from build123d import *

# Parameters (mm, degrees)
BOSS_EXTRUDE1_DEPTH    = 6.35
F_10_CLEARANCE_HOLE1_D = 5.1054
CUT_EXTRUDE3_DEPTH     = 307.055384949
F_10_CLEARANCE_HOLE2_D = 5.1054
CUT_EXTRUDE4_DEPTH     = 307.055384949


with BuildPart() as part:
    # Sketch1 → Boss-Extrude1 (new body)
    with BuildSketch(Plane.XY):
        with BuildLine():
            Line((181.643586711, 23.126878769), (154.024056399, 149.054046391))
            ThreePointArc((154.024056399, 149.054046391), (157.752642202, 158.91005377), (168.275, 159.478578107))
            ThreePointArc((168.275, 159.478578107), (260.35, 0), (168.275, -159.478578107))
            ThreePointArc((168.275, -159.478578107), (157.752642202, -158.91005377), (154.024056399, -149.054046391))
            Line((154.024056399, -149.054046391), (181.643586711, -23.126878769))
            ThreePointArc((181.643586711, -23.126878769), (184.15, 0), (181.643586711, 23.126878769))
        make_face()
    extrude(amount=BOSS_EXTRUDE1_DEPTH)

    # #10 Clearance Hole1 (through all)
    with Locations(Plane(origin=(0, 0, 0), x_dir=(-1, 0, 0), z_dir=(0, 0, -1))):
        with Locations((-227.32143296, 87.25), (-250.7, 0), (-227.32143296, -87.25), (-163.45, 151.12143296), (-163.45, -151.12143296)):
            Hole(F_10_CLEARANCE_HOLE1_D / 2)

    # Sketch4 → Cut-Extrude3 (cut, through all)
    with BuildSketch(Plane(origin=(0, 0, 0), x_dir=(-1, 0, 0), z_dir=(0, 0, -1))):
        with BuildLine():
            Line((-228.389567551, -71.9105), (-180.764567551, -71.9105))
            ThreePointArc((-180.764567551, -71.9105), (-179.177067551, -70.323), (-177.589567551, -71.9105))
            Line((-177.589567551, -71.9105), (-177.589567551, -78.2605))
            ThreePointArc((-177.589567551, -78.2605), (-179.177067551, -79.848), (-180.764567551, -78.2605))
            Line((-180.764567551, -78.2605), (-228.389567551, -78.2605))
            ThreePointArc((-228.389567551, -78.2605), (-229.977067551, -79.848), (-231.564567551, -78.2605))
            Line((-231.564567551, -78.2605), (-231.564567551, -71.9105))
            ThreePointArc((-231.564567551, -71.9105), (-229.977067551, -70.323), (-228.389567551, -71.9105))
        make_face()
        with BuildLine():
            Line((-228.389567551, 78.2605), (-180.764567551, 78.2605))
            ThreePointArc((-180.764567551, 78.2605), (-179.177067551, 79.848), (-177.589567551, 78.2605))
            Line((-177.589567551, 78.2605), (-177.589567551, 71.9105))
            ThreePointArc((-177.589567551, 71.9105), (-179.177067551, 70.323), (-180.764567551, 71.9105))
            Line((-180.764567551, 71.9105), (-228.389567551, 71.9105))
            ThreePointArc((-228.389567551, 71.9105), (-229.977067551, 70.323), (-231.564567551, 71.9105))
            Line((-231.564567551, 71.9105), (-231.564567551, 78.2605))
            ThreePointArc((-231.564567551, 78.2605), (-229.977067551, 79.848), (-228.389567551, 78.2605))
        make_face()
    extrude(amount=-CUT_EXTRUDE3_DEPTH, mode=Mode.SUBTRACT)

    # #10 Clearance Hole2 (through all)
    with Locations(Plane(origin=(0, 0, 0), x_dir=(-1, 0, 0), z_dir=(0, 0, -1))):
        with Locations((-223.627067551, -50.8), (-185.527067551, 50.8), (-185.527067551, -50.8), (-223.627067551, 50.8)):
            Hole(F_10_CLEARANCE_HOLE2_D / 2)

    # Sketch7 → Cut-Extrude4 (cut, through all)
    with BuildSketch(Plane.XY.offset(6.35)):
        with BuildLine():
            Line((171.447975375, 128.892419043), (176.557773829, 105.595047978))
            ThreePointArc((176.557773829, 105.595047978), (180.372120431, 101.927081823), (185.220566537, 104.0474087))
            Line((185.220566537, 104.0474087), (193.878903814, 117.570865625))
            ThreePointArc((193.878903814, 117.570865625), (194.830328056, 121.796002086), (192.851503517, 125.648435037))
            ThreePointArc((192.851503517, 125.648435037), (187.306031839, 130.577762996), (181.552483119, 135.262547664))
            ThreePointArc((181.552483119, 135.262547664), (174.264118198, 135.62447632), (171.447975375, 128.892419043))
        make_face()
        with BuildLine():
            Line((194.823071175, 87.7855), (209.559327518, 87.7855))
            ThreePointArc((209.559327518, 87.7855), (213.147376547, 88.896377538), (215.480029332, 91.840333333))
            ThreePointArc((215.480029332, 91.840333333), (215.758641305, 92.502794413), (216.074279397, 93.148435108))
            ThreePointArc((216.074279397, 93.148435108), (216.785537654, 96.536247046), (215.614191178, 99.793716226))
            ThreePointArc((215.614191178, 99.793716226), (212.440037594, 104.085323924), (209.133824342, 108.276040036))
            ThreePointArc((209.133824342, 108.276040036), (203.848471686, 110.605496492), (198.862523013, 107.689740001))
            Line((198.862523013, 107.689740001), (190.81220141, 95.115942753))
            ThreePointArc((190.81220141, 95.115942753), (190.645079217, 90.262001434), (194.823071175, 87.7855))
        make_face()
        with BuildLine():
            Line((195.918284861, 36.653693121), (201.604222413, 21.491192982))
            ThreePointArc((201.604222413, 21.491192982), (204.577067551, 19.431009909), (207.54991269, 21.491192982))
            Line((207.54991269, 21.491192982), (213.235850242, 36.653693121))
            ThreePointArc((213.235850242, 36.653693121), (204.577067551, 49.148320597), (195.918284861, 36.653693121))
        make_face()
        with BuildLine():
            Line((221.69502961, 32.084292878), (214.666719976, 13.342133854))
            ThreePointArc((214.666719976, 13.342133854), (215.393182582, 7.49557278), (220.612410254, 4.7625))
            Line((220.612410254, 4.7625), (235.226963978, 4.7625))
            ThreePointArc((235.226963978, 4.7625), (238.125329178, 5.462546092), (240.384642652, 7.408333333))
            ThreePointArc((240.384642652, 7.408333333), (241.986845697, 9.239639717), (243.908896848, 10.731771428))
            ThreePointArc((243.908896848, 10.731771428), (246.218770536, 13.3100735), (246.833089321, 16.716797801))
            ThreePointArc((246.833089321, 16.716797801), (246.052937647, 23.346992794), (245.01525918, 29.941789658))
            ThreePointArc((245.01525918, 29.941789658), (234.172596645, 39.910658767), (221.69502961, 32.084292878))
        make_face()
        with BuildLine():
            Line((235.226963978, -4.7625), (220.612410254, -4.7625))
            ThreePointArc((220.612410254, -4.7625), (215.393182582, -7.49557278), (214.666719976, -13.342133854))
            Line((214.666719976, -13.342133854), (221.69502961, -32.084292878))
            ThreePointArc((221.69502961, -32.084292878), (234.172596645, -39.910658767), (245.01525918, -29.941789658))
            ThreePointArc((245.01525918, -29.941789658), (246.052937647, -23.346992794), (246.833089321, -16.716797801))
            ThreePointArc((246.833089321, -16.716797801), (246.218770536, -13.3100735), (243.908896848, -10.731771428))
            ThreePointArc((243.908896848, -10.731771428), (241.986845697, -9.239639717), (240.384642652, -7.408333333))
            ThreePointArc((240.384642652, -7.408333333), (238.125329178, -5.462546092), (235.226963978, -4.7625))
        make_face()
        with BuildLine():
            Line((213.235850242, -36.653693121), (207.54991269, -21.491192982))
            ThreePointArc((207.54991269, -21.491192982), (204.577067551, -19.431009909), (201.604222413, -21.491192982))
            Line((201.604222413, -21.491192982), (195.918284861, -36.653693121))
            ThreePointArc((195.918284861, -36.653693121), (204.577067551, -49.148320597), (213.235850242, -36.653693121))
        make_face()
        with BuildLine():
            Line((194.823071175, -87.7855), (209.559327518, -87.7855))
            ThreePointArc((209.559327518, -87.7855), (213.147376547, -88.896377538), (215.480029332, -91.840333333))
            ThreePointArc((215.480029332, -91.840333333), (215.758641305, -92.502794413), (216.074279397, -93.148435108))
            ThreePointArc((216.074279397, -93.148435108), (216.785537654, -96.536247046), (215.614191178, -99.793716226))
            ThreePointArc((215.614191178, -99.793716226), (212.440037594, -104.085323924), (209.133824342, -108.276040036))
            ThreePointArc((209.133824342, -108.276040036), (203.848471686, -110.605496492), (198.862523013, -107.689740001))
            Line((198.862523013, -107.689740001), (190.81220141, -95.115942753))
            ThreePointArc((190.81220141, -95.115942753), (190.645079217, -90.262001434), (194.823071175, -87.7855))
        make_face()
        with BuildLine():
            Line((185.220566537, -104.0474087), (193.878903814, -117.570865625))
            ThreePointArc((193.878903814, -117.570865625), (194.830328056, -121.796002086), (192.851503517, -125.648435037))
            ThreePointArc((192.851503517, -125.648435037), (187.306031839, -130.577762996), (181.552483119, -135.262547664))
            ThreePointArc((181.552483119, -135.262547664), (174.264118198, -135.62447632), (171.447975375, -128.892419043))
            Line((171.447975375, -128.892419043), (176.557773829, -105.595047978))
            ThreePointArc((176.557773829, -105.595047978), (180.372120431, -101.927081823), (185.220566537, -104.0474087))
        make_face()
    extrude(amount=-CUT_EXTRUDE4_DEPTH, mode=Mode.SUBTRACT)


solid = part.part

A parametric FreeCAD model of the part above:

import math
import FreeCAD as App
import Part
import Sketcher
from FreeCAD import Vector
Q = App.Units.Quantity

doc = App.newDocument("Part")
body = doc.addObject("PartDesign::Body", "Body")

sketch1 = body.newObject("Sketcher::SketchObject", "Sketch")
sketch1.AttachmentSupport = (doc.getObject("XY_Plane"), [""])
sketch1.MapMode = "FlatFace"
sketch1.addGeometry([
    Part.LineSegment(Vector(154.024056, 149.054046, 0), Vector(181.643587, 23.126879, 0)),
    Part.ArcOfCircle(Part.Circle(Vector(76.2, 0, 0), Vector(0, 0, 1), 107.95), math.radians(-12.370765), math.radians(12.370765)),
    Part.LineSegment(Vector(181.643587, -23.126879, 0), Vector(154.024056, -149.054046, 0)),
    Part.ArcOfCircle(Part.Circle(Vector(163.45, -151.121433, 0), Vector(0, 0, 1), 9.65), math.radians(167.629235), math.radians(300)),
    Part.ArcOfCircle(Part.Circle(Vector(76.2, 0, 0), Vector(0, 0, 1), 184.15), math.radians(-60), math.radians(60)),
    Part.ArcOfCircle(Part.Circle(Vector(163.45, 151.121433, 0), Vector(0, 0, 1), 9.65), math.radians(60), math.radians(192.370765)),
], False)
sketch1.addConstraint([
    Sketcher.Constraint("Tangent", 0, 2, 1, 2),
    Sketcher.Constraint("Tangent", 1, 1, 2, 1),
    Sketcher.Constraint("Tangent", 2, 2, 3, 1),
    Sketcher.Constraint("Tangent", 3, 2, 4, 1),
    Sketcher.Constraint("Tangent", 4, 2, 5, 1),
    Sketcher.Constraint("Tangent", 5, 2, 0, 1),
    Sketcher.Constraint("Coincident", 4, 3, 1, 3),
    Sketcher.Constraint("Equal", 3, 5),
    Sketcher.Constraint("Symmetric", 3, 3, 5, 3, -1),
    Sketcher.Constraint("Radius", 1, Q("4.25 in")),
    Sketcher.Constraint("Radius", 4, Q("7.25 in")),
    Sketcher.Constraint("DistanceX", -1, 1, 1, 3, Q("3 in")),
    Sketcher.Constraint("Radius", 3, Q("9.65 mm")),
    Sketcher.Constraint("DistanceX", -1, 1, 3, 2, Q("6.625 in")),
])
pad1 = body.newObject("PartDesign::Pad", "Pad")
pad1.Profile = sketch1
pad1.Length = Q("0.25 in")

sketch2 = body.newObject("Sketcher::SketchObject", "Sketch001")
sketch2.AttachmentSupport = (doc.getObject("XY_Plane"), [""])
sketch2.MapMode = "FlatFace"
sketch2.addGeometry([
    Part.Circle(Vector(227.321433, 87.25, 0), Vector(0, 0, 1), 2.5527),
    Part.Circle(Vector(250.7, 0, 0), Vector(0, 0, 1), 2.5527),
    Part.Circle(Vector(227.321433, -87.25, 0), Vector(0, 0, 1), 2.5527),
    Part.Circle(Vector(163.45, 151.121433, 0), Vector(0, 0, 1), 2.5527),
    Part.Circle(Vector(163.45, -151.121433, 0), Vector(0, 0, 1), 2.5527),
], False)
sketch2.addConstraint([
    Sketcher.Constraint("Equal", 0, 1),
    Sketcher.Constraint("Equal", 1, 2),
    Sketcher.Constraint("Equal", 2, 3),
    Sketcher.Constraint("Equal", 3, 4),
    Sketcher.Constraint("Symmetric", 0, 3, 2, 3, -1),
    Sketcher.Constraint("Symmetric", 3, 3, 4, 3, -1),
    Sketcher.Constraint("PointOnObject", 1, 3, -1),
    Sketcher.Constraint("Diameter", 0, Q("0.201 in")),
    Sketcher.Constraint("DistanceY", -1, 1, 0, 3, Q("87.25 mm")),
    Sketcher.Constraint("DistanceX", -1, 1, 1, 3, Q("250.7 mm")),
    Sketcher.Constraint("DistanceX", -1, 1, 3, 3, Q("163.45 mm")),
    Sketcher.Constraint("DistanceX", -1, 1, 0, 3, Q("227.321433 mm")),
    Sketcher.Constraint("DistanceY", -1, 1, 3, 3, Q("151.121433 mm")),
])
doc.recompute()
hole = body.newObject("PartDesign::Hole", "Hole")
hole.Profile = sketch2
hole.ThreadType = "None"
hole.Diameter = Q("0.201 in")
hole.DepthType = "ThroughAll"
hole.Reversed = True

sketch3 = body.newObject("Sketcher::SketchObject", "Sketch002")
sketch3.AttachmentSupport = (doc.getObject("XY_Plane"), [""])
sketch3.MapMode = "FlatFace"
sketch3.addGeometry([
    Part.LineSegment(Vector(180.764568, -71.9105, 0), Vector(228.389568, -71.9105, 0)),
    Part.ArcOfCircle(Part.Circle(Vector(229.977068, -71.9105, 0), Vector(0, 0, 1), 1.5875), math.radians(0), math.radians(180)),
    Part.LineSegment(Vector(231.564568, -71.9105, 0), Vector(231.564568, -78.2605, 0)),
    Part.ArcOfCircle(Part.Circle(Vector(229.977068, -78.2605, 0), Vector(0, 0, 1), 1.5875), math.radians(180), math.radians(360)),
    Part.LineSegment(Vector(228.389568, -78.2605, 0), Vector(180.764568, -78.2605, 0)),
    Part.ArcOfCircle(Part.Circle(Vector(179.177068, -78.2605, 0), Vector(0, 0, 1), 1.5875), math.radians(180), math.radians(360)),
    Part.LineSegment(Vector(177.589568, -78.2605, 0), Vector(177.589568, -71.9105, 0)),
    Part.ArcOfCircle(Part.Circle(Vector(179.177068, -71.9105, 0), Vector(0, 0, 1), 1.5875), math.radians(0), math.radians(180)),
    Part.LineSegment(Vector(180.764568, 78.2605, 0), Vector(228.389568, 78.2605, 0)),
    Part.ArcOfCircle(Part.Circle(Vector(229.977068, 78.2605, 0), Vector(0, 0, 1), 1.5875), math.radians(0), math.radians(180)),
    Part.LineSegment(Vector(231.564568, 78.2605, 0), Vector(231.564568, 71.9105, 0)),
    Part.ArcOfCircle(Part.Circle(Vector(229.977068, 71.9105, 0), Vector(0, 0, 1), 1.5875), math.radians(180), math.radians(360)),
    Part.LineSegment(Vector(228.389568, 71.9105, 0), Vector(180.764568, 71.9105, 0)),
    Part.ArcOfCircle(Part.Circle(Vector(179.177068, 71.9105, 0), Vector(0, 0, 1), 1.5875), math.radians(180), math.radians(360)),
    Part.LineSegment(Vector(177.589568, 71.9105, 0), Vector(177.589568, 78.2605, 0)),
    Part.ArcOfCircle(Part.Circle(Vector(179.177068, 78.2605, 0), Vector(0, 0, 1), 1.5875), math.radians(0), math.radians(180)),
], False)
sketch3.addConstraint([
    Sketcher.Constraint("Coincident", 0, 2, 1, 2),
    Sketcher.Constraint("Tangent", 1, 1, 2, 1),
    Sketcher.Constraint("Tangent", 2, 2, 3, 2),
    Sketcher.Constraint("Coincident", 3, 1, 4, 1),
    Sketcher.Constraint("Coincident", 4, 2, 5, 2),
    Sketcher.Constraint("Tangent", 5, 1, 6, 1),
    Sketcher.Constraint("Tangent", 6, 2, 7, 2),
    Sketcher.Constraint("Coincident", 7, 1, 0, 1),
    Sketcher.Constraint("Coincident", 8, 2, 9, 2),
    Sketcher.Constraint("Tangent", 9, 1, 10, 1),
    Sketcher.Constraint("Tangent", 10, 2, 11, 2),
    Sketcher.Constraint("Coincident", 11, 1, 12, 1),
    Sketcher.Constraint("Coincident", 12, 2, 13, 2),
    Sketcher.Constraint("Tangent", 13, 1, 14, 1),
    Sketcher.Constraint("Tangent", 14, 2, 15, 2),
    Sketcher.Constraint("Coincident", 15, 1, 8, 1),
    Sketcher.Constraint("Horizontal", 0),
    Sketcher.Constraint("Vertical", 2),
    Sketcher.Constraint("Horizontal", 4),
    Sketcher.Constraint("Vertical", 6),
    Sketcher.Constraint("Horizontal", 8),
    Sketcher.Constraint("Vertical", 10),
    Sketcher.Constraint("Horizontal", 12),
    Sketcher.Constraint("Vertical", 14),
    Sketcher.Constraint("Equal", 1, 3),
    Sketcher.Constraint("Equal", 3, 5),
    Sketcher.Constraint("Equal", 5, 7),
    Sketcher.Constraint("Equal", 7, 9),
    Sketcher.Constraint("Equal", 9, 11),
    Sketcher.Constraint("Equal", 11, 13),
    Sketcher.Constraint("Equal", 13, 15),
    Sketcher.Constraint("Symmetric", 3, 3, 9, 3, -1),
    Sketcher.Constraint("Symmetric", 7, 3, 13, 3, -1),
    Sketcher.Constraint("Horizontal", 3, 3, 5, 3),
    Sketcher.Constraint("Horizontal", 1, 3, 7, 3),
    Sketcher.Constraint("Horizontal", 11, 3, 13, 3),
    Sketcher.Constraint("Horizontal", 9, 3, 15, 3),
    Sketcher.Constraint("Horizontal", 7, 3, 0, 2),
    Sketcher.Constraint("Horizontal", 2, 2, 3, 1),
    Sketcher.Constraint("Horizontal", 15, 3, 8, 2),
    Sketcher.Constraint("Horizontal", 10, 2, 11, 1),
    Sketcher.Constraint("Radius", 1, Q("0.0625 in")),
    Sketcher.Constraint("DistanceX", 5, 3, 3, 3, Q("2 in")),
    Sketcher.Constraint("DistanceY", 2, 2, 2, 1, Q("0.25 in")),
    Sketcher.Constraint("DistanceY", 1, 3, -1, 1, Q("71.9105 mm")),
    Sketcher.Constraint("DistanceX", -1, 1, 1, 3, Q("229.977068 mm")),
])
pocket1 = body.newObject("PartDesign::Pocket", "Pocket")
pocket1.Profile = sketch3
pocket1.Type = "ThroughAll"
pocket1.Reversed = True

sketch4 = body.newObject("Sketcher::SketchObject", "Sketch003")
sketch4.AttachmentSupport = (doc.getObject("XY_Plane"), [""])
sketch4.MapMode = "FlatFace"
sketch4.addGeometry([
    Part.Circle(Vector(223.627068, -50.8, 0), Vector(0, 0, 1), 2.5527),
    Part.Circle(Vector(185.527068, 50.8, 0), Vector(0, 0, 1), 2.5527),
    Part.Circle(Vector(185.527068, -50.8, 0), Vector(0, 0, 1), 2.5527),
    Part.Circle(Vector(223.627068, 50.8, 0), Vector(0, 0, 1), 2.5527),
], False)
sketch4.addConstraint([
    Sketcher.Constraint("Equal", 0, 1),
    Sketcher.Constraint("Equal", 1, 2),
    Sketcher.Constraint("Equal", 2, 3),
    Sketcher.Constraint("Symmetric", 1, 3, 2, 3, -1),
    Sketcher.Constraint("Symmetric", 0, 3, 3, 3, -1),
    Sketcher.Constraint("Horizontal", 0, 3, 2, 3),
    Sketcher.Constraint("Diameter", 0, Q("0.201 in")),
    Sketcher.Constraint("DistanceY", 0, 3, -1, 1, Q("2 in")),
    Sketcher.Constraint("DistanceX", 1, 3, 0, 3, Q("1.5 in")),
    Sketcher.Constraint("DistanceX", -1, 1, 0, 3, Q("223.627068 mm")),
])
doc.recompute()
hole2 = body.newObject("PartDesign::Hole", "Hole001")
hole2.Profile = sketch4
hole2.ThreadType = "None"
hole2.Diameter = Q("0.201 in")
hole2.DepthType = "ThroughAll"
hole2.Reversed = True

sketch5 = body.newObject("Sketcher::SketchObject", "Sketch004")
sketch5.AttachmentSupport = (doc.getObject("XY_Plane"), [""])
sketch5.MapMode = "FlatFace"
sketch5.AttachmentOffset = App.Placement(Vector(0, 0, 0.25 * 25.4), App.Rotation())
sketch5.addGeometry([
    Part.LineSegment(Vector(171.447975, 128.892419, 0), Vector(176.557774, 105.595048, 0)),
    Part.ArcOfCircle(Part.Circle(Vector(181.209697, 106.615351, 0), Vector(0, 0, 1), 4.7625), math.radians(-167.629235), math.radians(-32.629235)),
    Part.LineSegment(Vector(185.220567, 104.047409, 0), Vector(193.878904, 117.570866, 0)),
    Part.ArcOfCircle(Part.Circle(Vector(188.531077, 120.994789, 0), Vector(0, 0, 1), 6.35), math.radians(-32.629235), math.radians(47.126495)),
    Part.ArcOfCircle(Part.Circle(Vector(76.2, 0, 0), Vector(0, 0, 1), 171.45), math.radians(47.126495), math.radians(52.085902)),
    Part.ArcOfCircle(Part.Circle(Vector(177.650539, 130.252824, 0), Vector(0, 0, 1), 6.35), math.radians(52.085902), math.radians(192.370765)),
    Part.LineSegment(Vector(194.823071, 87.7855, 0), Vector(209.559328, 87.7855, 0)),
    Part.ArcOfCircle(Part.Circle(Vector(209.559328, 94.1355, 0), Vector(0, 0, 1), 6.35), math.radians(-90), math.radians(-21.188877)),
    Part.ArcOfCircle(Part.Circle(Vector(227.321433, 87.25, 0), Vector(0, 0, 1), 12.7), math.radians(152.325774), math.radians(158.811123)),
    Part.ArcOfCircle(Part.Circle(Vector(210.450703, 96.097653, 0), Vector(0, 0, 1), 6.35), math.radians(-27.674226), math.radians(35.595369)),
    Part.ArcOfCircle(Part.Circle(Vector(76.2, 0, 0), Vector(0, 0, 1), 171.45), math.radians(35.595369), math.radians(39.163189)),
    Part.ArcOfCircle(Part.Circle(Vector(204.210349, 104.265816, 0), Vector(0, 0, 1), 6.35), math.radians(39.163189), math.radians(147.370765)),
    Part.LineSegment(Vector(198.862523, 107.68974, 0), Vector(190.812201, 95.115943, 0)),
    Part.ArcOfCircle(Part.Circle(Vector(194.823071, 92.548, 0), Vector(0, 0, 1), 4.7625), math.radians(147.370765), math.radians(270)),
    Part.LineSegment(Vector(195.918285, 36.653693, 0), Vector(201.604222, 21.491193, 0)),
    Part.ArcOfCircle(Part.Circle(Vector(204.577068, 22.60601, 0), Vector(0, 0, 1), 3.175), math.radians(-159.443955), math.radians(-20.556045)),
    Part.LineSegment(Vector(207.549913, 21.491193, 0), Vector(213.23585, 36.653693, 0)),
    Part.ArcOfCircle(Part.Circle(Vector(204.577068, 39.900737, 0), Vector(0, 0, 1), 9.247584), math.radians(-20.556045), math.radians(200.556045)),
    Part.LineSegment(Vector(221.69503, 32.084293, 0), Vector(214.66672, 13.342134, 0)),
    Part.ArcOfCircle(Part.Circle(Vector(220.61241, 11.1125, 0), Vector(0, 0, 1), 6.35), math.radians(159.443955), math.radians(270)),
    Part.LineSegment(Vector(220.61241, 4.7625, 0), Vector(235.226964, 4.7625, 0)),
    Part.ArcOfCircle(Part.Circle(Vector(235.226964, 11.1125, 0), Vector(0, 0, 1), 6.35), math.radians(-90), math.radians(-35.685335)),
    Part.ArcOfCircle(Part.Circle(Vector(250.7, 0, 0), Vector(0, 0, 1), 12.7), math.radians(122.325774), math.radians(144.314665)),
    Part.ArcOfCircle(Part.Circle(Vector(240.513345, 16.097657, 0), Vector(0, 0, 1), 6.35), math.radians(-57.674226), math.radians(5.595369)),
    Part.ArcOfCircle(Part.Circle(Vector(76.2, 0, 0), Vector(0, 0, 1), 171.45), math.radians(5.595369), math.radians(10.057628)),
    Part.ArcOfCircle(Part.Circle(Vector(233.061946, 27.821699, 0), Vector(0, 0, 1), 12.139872), math.radians(10.057628), math.radians(159.443955)),
    Part.LineSegment(Vector(235.226964, -4.7625, 0), Vector(220.61241, -4.7625, 0)),
    Part.ArcOfCircle(Part.Circle(Vector(220.61241, -11.1125, 0), Vector(0, 0, 1), 6.35), math.radians(90), math.radians(200.556045)),
    Part.LineSegment(Vector(214.66672, -13.342134, 0), Vector(221.69503, -32.084293, 0)),
    Part.ArcOfCircle(Part.Circle(Vector(233.061946, -27.821699, 0), Vector(0, 0, 1), 12.139872), math.radians(-159.443955), math.radians(-10.057628)),
    Part.ArcOfCircle(Part.Circle(Vector(76.2, 0, 0), Vector(0, 0, 1), 171.45), math.radians(-10.057628), math.radians(-5.595369)),
    Part.ArcOfCircle(Part.Circle(Vector(240.513345, -16.097657, 0), Vector(0, 0, 1), 6.35), math.radians(-5.595369), math.radians(57.674226)),
    Part.ArcOfCircle(Part.Circle(Vector(250.7, 0, 0), Vector(0, 0, 1), 12.7), math.radians(-144.314665), math.radians(-122.325774)),
    Part.ArcOfCircle(Part.Circle(Vector(235.226964, -11.1125, 0), Vector(0, 0, 1), 6.35), math.radians(35.685335), math.radians(90)),
    Part.LineSegment(Vector(213.23585, -36.653693, 0), Vector(207.549913, -21.491193, 0)),
    Part.ArcOfCircle(Part.Circle(Vector(204.577068, -22.60601, 0), Vector(0, 0, 1), 3.175), math.radians(20.556045), math.radians(159.443955)),
    Part.LineSegment(Vector(201.604222, -21.491193, 0), Vector(195.918285, -36.653693, 0)),
    Part.ArcOfCircle(Part.Circle(Vector(204.577068, -39.900737, 0), Vector(0, 0, 1), 9.247584), math.radians(159.443955), math.radians(380.556045)),
    Part.LineSegment(Vector(209.559328, -87.7855, 0), Vector(194.823071, -87.7855, 0)),
    Part.ArcOfCircle(Part.Circle(Vector(194.823071, -92.548, 0), Vector(0, 0, 1), 4.7625), math.radians(90), math.radians(212.629235)),
    Part.LineSegment(Vector(190.812201, -95.115943, 0), Vector(198.862523, -107.68974, 0)),
    Part.ArcOfCircle(Part.Circle(Vector(204.210349, -104.265816, 0), Vector(0, 0, 1), 6.35), math.radians(-147.370765), math.radians(-39.163189)),
    Part.ArcOfCircle(Part.Circle(Vector(76.2, 0, 0), Vector(0, 0, 1), 171.45), math.radians(-39.163189), math.radians(-35.595369)),
    Part.ArcOfCircle(Part.Circle(Vector(210.450703, -96.097653, 0), Vector(0, 0, 1), 6.35), math.radians(-35.595369), math.radians(27.674226)),
    Part.ArcOfCircle(Part.Circle(Vector(227.321433, -87.25, 0), Vector(0, 0, 1), 12.7), math.radians(-158.811123), math.radians(-152.325774)),
    Part.ArcOfCircle(Part.Circle(Vector(209.559328, -94.1355, 0), Vector(0, 0, 1), 6.35), math.radians(21.188877), math.radians(90)),
    Part.LineSegment(Vector(193.878904, -117.570866, 0), Vector(185.220567, -104.047409, 0)),
    Part.ArcOfCircle(Part.Circle(Vector(181.209697, -106.615351, 0), Vector(0, 0, 1), 4.7625), math.radians(32.629235), math.radians(167.629235)),
    Part.LineSegment(Vector(176.557774, -105.595048, 0), Vector(171.447975, -128.892419, 0)),
    Part.ArcOfCircle(Part.Circle(Vector(177.650539, -130.252824, 0), Vector(0, 0, 1), 6.35), math.radians(167.629235), math.radians(307.914098)),
    Part.ArcOfCircle(Part.Circle(Vector(76.2, 0, 0), Vector(0, 0, 1), 171.45), math.radians(-52.085902), math.radians(-47.126495)),
    Part.ArcOfCircle(Part.Circle(Vector(188.531077, -120.994789, 0), Vector(0, 0, 1), 6.35), math.radians(-47.126495), math.radians(32.629235)),
], False)
sketch5.addConstraint([
    Sketcher.Constraint("Tangent", 0, 2, 1, 1),
    Sketcher.Constraint("Tangent", 1, 2, 2, 1),
    Sketcher.Constraint("Tangent", 2, 2, 3, 1),
    Sketcher.Constraint("Tangent", 3, 2, 4, 1),
    Sketcher.Constraint("Tangent", 4, 2, 5, 1),
    Sketcher.Constraint("Tangent", 5, 2, 0, 1),
    Sketcher.Constraint("Tangent", 6, 2, 7, 1),
    Sketcher.Constraint("Tangent", 7, 2, 8, 2),
    Sketcher.Constraint("Tangent", 8, 1, 9, 1),
    Sketcher.Constraint("Tangent", 9, 2, 10, 1),
    Sketcher.Constraint("Tangent", 10, 2, 11, 1),
    Sketcher.Constraint("Tangent", 11, 2, 12, 1),
    Sketcher.Constraint("Tangent", 12, 2, 13, 1),
    Sketcher.Constraint("Tangent", 13, 2, 6, 1),
    Sketcher.Constraint("Tangent", 14, 2, 15, 1),
    Sketcher.Constraint("Tangent", 15, 2, 16, 1),
    Sketcher.Constraint("Tangent", 16, 2, 17, 1),
    Sketcher.Constraint("Tangent", 17, 2, 14, 1),
    Sketcher.Constraint("Tangent", 18, 2, 19, 1),
    Sketcher.Constraint("Tangent", 19, 2, 20, 1),
    Sketcher.Constraint("Tangent", 20, 2, 21, 1),
    Sketcher.Constraint("Tangent", 21, 2, 22, 2),
    Sketcher.Constraint("Tangent", 22, 1, 23, 1),
    Sketcher.Constraint("Tangent", 23, 2, 24, 1),
    Sketcher.Constraint("Tangent", 24, 2, 25, 1),
    Sketcher.Constraint("Tangent", 25, 2, 18, 1),
    Sketcher.Constraint("Tangent", 26, 2, 27, 1),
    Sketcher.Constraint("Tangent", 27, 2, 28, 1),
    Sketcher.Constraint("Tangent", 28, 2, 29, 1),
    Sketcher.Constraint("Tangent", 29, 2, 30, 1),
    Sketcher.Constraint("Tangent", 30, 2, 31, 1),
    Sketcher.Constraint("Tangent", 31, 2, 32, 2),
    Sketcher.Constraint("Tangent", 32, 1, 33, 1),
    Sketcher.Constraint("Tangent", 33, 2, 26, 1),
    Sketcher.Constraint("Tangent", 34, 2, 35, 1),
    Sketcher.Constraint("Tangent", 35, 2, 36, 1),
    Sketcher.Constraint("Tangent", 36, 2, 37, 1),
    Sketcher.Constraint("Tangent", 37, 2, 34, 1),
    Sketcher.Constraint("Tangent", 38, 2, 39, 1),
    Sketcher.Constraint("Tangent", 39, 2, 40, 1),
    Sketcher.Constraint("Tangent", 40, 2, 41, 1),
    Sketcher.Constraint("Tangent", 41, 2, 42, 1),
    Sketcher.Constraint("Tangent", 42, 2, 43, 1),
    Sketcher.Constraint("Tangent", 43, 2, 44, 2),
    Sketcher.Constraint("Tangent", 44, 1, 45, 1),
    Sketcher.Constraint("Tangent", 45, 2, 38, 1),
    Sketcher.Constraint("Tangent", 46, 2, 47, 1),
    Sketcher.Constraint("Tangent", 47, 2, 48, 1),
    Sketcher.Constraint("Tangent", 48, 2, 49, 1),
    Sketcher.Constraint("Tangent", 49, 2, 50, 1),
    Sketcher.Constraint("Tangent", 50, 2, 51, 1),
    Sketcher.Constraint("Tangent", 51, 2, 46, 1),
    Sketcher.Constraint("Horizontal", 6),
    Sketcher.Constraint("Horizontal", 20),
    Sketcher.Constraint("Horizontal", 26),
    Sketcher.Constraint("Horizontal", 38),
    Sketcher.Constraint("Coincident", 10, 3, 4, 3),
    Sketcher.Constraint("Coincident", 24, 3, 4, 3),
    Sketcher.Constraint("Coincident", 30, 3, 4, 3),
    Sketcher.Constraint("Coincident", 32, 3, 22, 3),
    Sketcher.Constraint("Coincident", 42, 3, 4, 3),
    Sketcher.Constraint("Coincident", 50, 3, 4, 3),
    Sketcher.Constraint("Equal", 3, 5),
    Sketcher.Constraint("Equal", 5, 7),
    Sketcher.Constraint("Equal", 7, 9),
    Sketcher.Constraint("Equal", 4, 10),
    Sketcher.Constraint("Equal", 9, 11),
    Sketcher.Constraint("Equal", 1, 13),
    Sketcher.Constraint("Equal", 11, 19),
    Sketcher.Constraint("Equal", 19, 21),
    Sketcher.Constraint("Equal", 8, 22),
    Sketcher.Constraint("Equal", 21, 23),
    Sketcher.Constraint("Equal", 10, 24),
    Sketcher.Constraint("Equal", 23, 27),
    Sketcher.Constraint("Equal", 25, 29),
    Sketcher.Constraint("Equal", 24, 30),
    Sketcher.Constraint("Equal", 27, 31),
    Sketcher.Constraint("Equal", 22, 32),
    Sketcher.Constraint("Equal", 31, 33),
    Sketcher.Constraint("Equal", 15, 35),
    Sketcher.Constraint("Equal", 17, 37),
    Sketcher.Constraint("Equal", 13, 39),
    Sketcher.Constraint("Equal", 33, 41),
    Sketcher.Constraint("Equal", 30, 42),
    Sketcher.Constraint("Equal", 41, 43),
    Sketcher.Constraint("Equal", 32, 44),
    Sketcher.Constraint("Equal", 43, 45),
    Sketcher.Constraint("Equal", 39, 47),
    Sketcher.Constraint("Equal", 45, 49),
    Sketcher.Constraint("Equal", 42, 50),
    Sketcher.Constraint("Equal", 49, 51),
    Sketcher.Constraint("Symmetric", 19, 3, 27, 3, -1),
    Sketcher.Constraint("Symmetric", 25, 3, 29, 3, -1),
    Sketcher.Constraint("Symmetric", 15, 3, 35, 3, -1),
    Sketcher.Constraint("Symmetric", 17, 3, 37, 3, -1),
    Sketcher.Constraint("Symmetric", 13, 3, 39, 3, -1),
    Sketcher.Constraint("Symmetric", 8, 3, 44, 3, -1),
    Sketcher.Constraint("Symmetric", 1, 3, 47, 3, -1),
    Sketcher.Constraint("PointOnObject", 22, 3, -1),
    Sketcher.Constraint("Parallel", 2, 12),
    Sketcher.Constraint("Parallel", 16, 18),
    Sketcher.Constraint("Parallel", 14, 28),
    Sketcher.Constraint("Parallel", 40, 46),
    Sketcher.Constraint("Vertical", 11, 3, 41, 3),
    Sketcher.Constraint("Vertical", 5, 3, 49, 3),
    Sketcher.Constraint("Radius", 8, Q("0.5 in")),
    Sketcher.Constraint("Radius", 3, Q("0.25 in")),
    Sketcher.Constraint("Radius", 4, Q("6.75 in")),
    Sketcher.Constraint("DistanceX", -1, 1, 4, 3, Q("3 in")),
    Sketcher.Constraint("Radius", 1, Q("0.1875 in")),
    Sketcher.Constraint("Radius", 15, Q("0.125 in")),
    Sketcher.Constraint("DistanceY", -1, 1, 19, 3, Q("0.4375 in")),
    Sketcher.Constraint("Radius", 25, Q("12.139872 mm")),
    Sketcher.Constraint("Radius", 17, Q("9.247584 mm")),
    Sketcher.Constraint("DistanceY", -1, 1, 7, 3, Q("94.1355 mm")),
    Sketcher.Constraint("DistanceY", -1, 1, 8, 3, Q("87.25 mm")),
    Sketcher.Constraint("DistanceX", -1, 1, 22, 3, Q("250.7 mm")),
    Sketcher.Constraint("DistanceY", -1, 1, 25, 3, Q("27.821699 mm")),
    Sketcher.Constraint("DistanceX", -1, 1, 12, 2, Q("190.812201 mm")),
    Sketcher.Constraint("Distance", 2, Q("16.05773 mm")),
    Sketcher.Constraint("DistanceX", 6, 1, 6, 2, Q("14.736256 mm")),
    Sketcher.Constraint("DistanceX", 20, 1, 20, 2, Q("14.614554 mm")),
    Sketcher.Constraint("DistanceY", -1, 1, 1, 3, Q("106.615351 mm")),
    Sketcher.Constraint("DistanceY", -1, 1, 3, 3, Q("120.994789 mm")),
    Sketcher.Constraint("DistanceX", -1, 1, 5, 3, Q("177.650539 mm")),
    Sketcher.Constraint("DistanceY", -1, 1, 15, 3, Q("22.60601 mm")),
    Sketcher.Constraint("DistanceX", -1, 1, 16, 2, Q("213.23585 mm")),
])
pocket2 = body.newObject("PartDesign::Pocket", "Pocket001")
pocket2.Profile = sketch5
pocket2.Type = "ThroughAll"

doc.recompute()
